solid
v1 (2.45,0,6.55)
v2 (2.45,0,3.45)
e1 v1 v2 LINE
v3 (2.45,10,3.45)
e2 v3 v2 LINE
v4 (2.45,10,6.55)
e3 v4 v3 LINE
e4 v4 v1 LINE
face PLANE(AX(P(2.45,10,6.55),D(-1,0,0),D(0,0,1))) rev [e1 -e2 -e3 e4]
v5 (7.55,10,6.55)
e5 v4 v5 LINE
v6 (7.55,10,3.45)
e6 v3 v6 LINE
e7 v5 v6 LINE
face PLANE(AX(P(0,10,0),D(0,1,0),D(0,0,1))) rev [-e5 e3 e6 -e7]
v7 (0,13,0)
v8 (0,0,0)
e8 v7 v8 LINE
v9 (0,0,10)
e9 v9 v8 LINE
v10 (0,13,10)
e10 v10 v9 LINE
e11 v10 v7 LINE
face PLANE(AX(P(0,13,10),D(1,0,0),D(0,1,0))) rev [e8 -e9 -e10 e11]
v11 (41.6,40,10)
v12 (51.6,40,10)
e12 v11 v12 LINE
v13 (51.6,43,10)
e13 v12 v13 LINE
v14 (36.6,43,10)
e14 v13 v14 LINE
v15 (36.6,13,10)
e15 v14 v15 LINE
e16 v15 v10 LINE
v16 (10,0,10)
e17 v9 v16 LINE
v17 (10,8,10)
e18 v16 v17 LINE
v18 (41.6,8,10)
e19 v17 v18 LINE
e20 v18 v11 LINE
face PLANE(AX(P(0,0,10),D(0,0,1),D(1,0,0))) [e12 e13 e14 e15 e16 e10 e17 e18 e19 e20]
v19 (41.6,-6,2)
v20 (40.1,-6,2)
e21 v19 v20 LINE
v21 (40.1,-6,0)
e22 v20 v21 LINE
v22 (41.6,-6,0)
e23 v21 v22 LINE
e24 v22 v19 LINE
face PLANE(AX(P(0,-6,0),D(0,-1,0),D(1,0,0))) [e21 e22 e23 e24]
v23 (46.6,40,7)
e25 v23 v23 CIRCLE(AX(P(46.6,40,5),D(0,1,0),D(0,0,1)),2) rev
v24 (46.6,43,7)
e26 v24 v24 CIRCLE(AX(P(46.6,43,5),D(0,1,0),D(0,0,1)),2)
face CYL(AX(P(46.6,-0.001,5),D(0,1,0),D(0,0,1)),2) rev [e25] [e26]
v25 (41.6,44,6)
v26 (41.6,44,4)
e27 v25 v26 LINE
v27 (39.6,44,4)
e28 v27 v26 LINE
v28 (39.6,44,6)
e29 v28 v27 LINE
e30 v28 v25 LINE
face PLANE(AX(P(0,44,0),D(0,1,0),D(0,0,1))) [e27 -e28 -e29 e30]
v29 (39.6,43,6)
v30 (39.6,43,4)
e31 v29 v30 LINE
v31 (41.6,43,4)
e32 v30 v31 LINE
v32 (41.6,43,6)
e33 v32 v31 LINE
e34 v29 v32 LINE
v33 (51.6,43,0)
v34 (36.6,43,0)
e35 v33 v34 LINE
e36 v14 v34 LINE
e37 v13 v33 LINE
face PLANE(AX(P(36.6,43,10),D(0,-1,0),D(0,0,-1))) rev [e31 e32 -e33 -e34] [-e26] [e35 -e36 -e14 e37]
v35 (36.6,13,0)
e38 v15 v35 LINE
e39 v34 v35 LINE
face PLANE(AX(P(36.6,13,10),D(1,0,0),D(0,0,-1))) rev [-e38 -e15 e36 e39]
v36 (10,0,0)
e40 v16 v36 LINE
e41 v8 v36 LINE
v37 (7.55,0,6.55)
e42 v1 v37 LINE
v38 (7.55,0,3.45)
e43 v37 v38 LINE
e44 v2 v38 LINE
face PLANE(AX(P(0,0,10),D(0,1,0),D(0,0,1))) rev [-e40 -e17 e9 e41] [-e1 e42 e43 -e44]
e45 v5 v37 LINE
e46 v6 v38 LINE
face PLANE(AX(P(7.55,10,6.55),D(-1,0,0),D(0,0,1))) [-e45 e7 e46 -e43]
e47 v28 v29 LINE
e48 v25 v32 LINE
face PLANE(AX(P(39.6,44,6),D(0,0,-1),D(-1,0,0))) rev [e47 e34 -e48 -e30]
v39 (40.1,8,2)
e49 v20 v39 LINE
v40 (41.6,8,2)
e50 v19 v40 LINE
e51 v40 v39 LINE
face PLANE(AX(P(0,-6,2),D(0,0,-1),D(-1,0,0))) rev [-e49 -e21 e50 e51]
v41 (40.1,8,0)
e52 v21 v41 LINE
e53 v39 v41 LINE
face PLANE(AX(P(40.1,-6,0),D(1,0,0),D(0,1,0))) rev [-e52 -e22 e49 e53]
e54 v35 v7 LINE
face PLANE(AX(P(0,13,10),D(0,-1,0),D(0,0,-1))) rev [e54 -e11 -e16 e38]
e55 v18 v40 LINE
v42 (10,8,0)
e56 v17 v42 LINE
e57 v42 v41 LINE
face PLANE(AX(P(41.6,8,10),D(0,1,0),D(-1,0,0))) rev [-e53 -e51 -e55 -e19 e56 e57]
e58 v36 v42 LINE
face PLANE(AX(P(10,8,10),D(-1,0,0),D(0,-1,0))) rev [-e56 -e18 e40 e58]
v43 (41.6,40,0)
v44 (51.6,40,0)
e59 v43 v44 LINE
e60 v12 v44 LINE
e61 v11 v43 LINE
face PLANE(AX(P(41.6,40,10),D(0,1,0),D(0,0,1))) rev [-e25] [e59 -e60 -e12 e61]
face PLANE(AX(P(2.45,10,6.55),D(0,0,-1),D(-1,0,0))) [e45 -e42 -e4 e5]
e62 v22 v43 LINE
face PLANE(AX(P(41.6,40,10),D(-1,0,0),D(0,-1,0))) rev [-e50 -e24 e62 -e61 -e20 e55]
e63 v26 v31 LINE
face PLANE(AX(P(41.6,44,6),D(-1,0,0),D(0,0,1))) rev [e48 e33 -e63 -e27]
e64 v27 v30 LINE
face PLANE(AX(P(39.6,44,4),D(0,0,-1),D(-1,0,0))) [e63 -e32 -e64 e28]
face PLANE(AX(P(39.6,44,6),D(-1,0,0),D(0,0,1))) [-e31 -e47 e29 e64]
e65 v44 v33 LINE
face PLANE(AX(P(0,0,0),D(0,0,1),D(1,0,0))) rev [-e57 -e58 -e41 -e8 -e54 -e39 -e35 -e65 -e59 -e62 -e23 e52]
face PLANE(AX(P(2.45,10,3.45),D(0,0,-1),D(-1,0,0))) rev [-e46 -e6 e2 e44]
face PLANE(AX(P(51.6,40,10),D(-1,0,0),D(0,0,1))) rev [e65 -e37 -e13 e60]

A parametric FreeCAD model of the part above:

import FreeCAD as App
import Part
import Sketcher
from FreeCAD import Vector
Q = App.Units.Quantity

doc = App.newDocument("Part")
body = doc.addObject("PartDesign::Body", "Body")

# Sketch on XY plane
sketch1 = body.newObject("Sketcher::SketchObject", "Sketch")
sketch1.AttachmentSupport = (doc.getObject("XY_Plane"), [""])
sketch1.MapMode = "FlatFace"
sketch1.addGeometry([
    Part.LineSegment(Vector(36.6, 13, 0), Vector(0, 13, 0)),  # 0
    Part.LineSegment(Vector(0, 13, 0), Vector(0, 0, 0)),  # 1
    Part.LineSegment(Vector(0, 0, 0), Vector(10, 0, 0)),  # 2
    Part.LineSegment(Vector(10, 0, 0), Vector(10, 8, 0)),  # 3
    Part.LineSegment(Vector(10, 8, 0), Vector(41.6, 8, 0)),  # 4
    Part.LineSegment(Vector(41.6, 8, 0), Vector(41.6, 40, 0)),  # 5
    Part.LineSegment(Vector(41.6, 40, 0), Vector(51.6, 40, 0)),  # 6
    Part.LineSegment(Vector(51.6, 40, 0), Vector(51.6, 43, 0)),  # 7
    Part.LineSegment(Vector(51.6, 43, 0), Vector(36.6, 43, 0)),  # 8
    Part.LineSegment(Vector(36.6, 43, 0), Vector(36.6, 13, 0)),  # 9
], False)
sketch1.addConstraint([
    Sketcher.Constraint("Coincident", 0, 2, 1, 1),
    Sketcher.Constraint("Coincident", 1, 2, 2, 1),
    Sketcher.Constraint("Coincident", 2, 2, 3, 1),
    Sketcher.Constraint("Coincident", 3, 2, 4, 1),
    Sketcher.Constraint("Coincident", 4, 2, 5, 1),
    Sketcher.Constraint("Coincident", 5, 2, 6, 1),
    Sketcher.Constraint("Coincident", 6, 2, 7, 1),
    Sketcher.Constraint("Coincident", 7, 2, 8, 1),
    Sketcher.Constraint("Coincident", 8, 2, 9, 1),
    Sketcher.Constraint("Coincident", 9, 2, 0, 1),
    Sketcher.Constraint("Horizontal", 0),
    Sketcher.Constraint("Vertical", 1),
    Sketcher.Constraint("Horizontal", 2),
    Sketcher.Constraint("Vertical", 3),
    Sketcher.Constraint("Horizontal", 4),
    Sketcher.Constraint("Vertical", 5),
    Sketcher.Constraint("Horizontal", 6),
    Sketcher.Constraint("Vertical", 7),
    Sketcher.Constraint("Horizontal", 8),
    Sketcher.Constraint("Vertical", 9),
    Sketcher.Constraint("Coincident", 1, 2, -1, 1),
    Sketcher.Constraint("Equal", 2, 6),
    Sketcher.Constraint("DistanceX", 2, 1, 2, 2, Q("10 mm")),
    Sketcher.Constraint("DistanceX", 8, 2, 8, 1, Q("15 mm")),
    Sketcher.Constraint("DistanceY", 1, 2, 1, 1, Q("13 mm")),
    Sketcher.Constraint("DistanceY", 3, 1, 3, 2, Q("8 mm")),
    Sketcher.Constraint("DistanceY", 5, 1, 5, 2, Q("32 mm")),
    Sketcher.Constraint("DistanceY", 7, 1, 7, 2, Q("3 mm")),
    Sketcher.Constraint("DistanceX", 0, 2, 0, 1, Q("36.6 mm")),
])
pad1 = body.newObject("PartDesign::Pad", "Pad")
pad1.Profile = sketch1
pad1.Length = 10

# Sketch on XZ plane
sketch2 = body.newObject("Sketcher::SketchObject", "Sketch001")
sketch2.AttachmentSupport = (doc.getObject("XZ_Plane"), [""])
sketch2.MapMode = "FlatFace"
sketch2.addGeometry([
    Part.LineSegment(Vector(2.5, 6.5, 0), Vector(2.5, 3.5, 0)),
    Part.LineSegment(Vector(2.5, 3.5, 0), Vector(7.5, 3.5, 0)),
    Part.LineSegment(Vector(7.5, 3.5, 0), Vector(7.5, 6.5, 0)),
    Part.LineSegment(Vector(7.5, 6.5, 0), Vector(2.5, 6.5, 0)),
], False)
sketch2.addConstraint([
    Sketcher.Constraint("Coincident", 0, 2, 1, 1),
    Sketcher.Constraint("Coincident", 1, 2, 2, 1),
    Sketcher.Constraint("Coincident", 2, 2, 3, 1),
    Sketcher.Constraint("Coincident", 3, 2, 0, 1),
    Sketcher.Constraint("Vertical", 0),
    Sketcher.Constraint("Horizontal", 1),
    Sketcher.Constraint("Vertical", 2),
    Sketcher.Constraint("Horizontal", 3),
    Sketcher.Constraint("DistanceX", 1, 1, 1, 2, Q("5.1 mm")),
    Sketcher.Constraint("DistanceY", 0, 2, 0, 1, Q("3.1 mm")),
    Sketcher.Constraint("DistanceX", -1, 1, 0, 2, Q("2.45 mm")),
    Sketcher.Constraint("DistanceY", -1, 1, 0, 2, Q("3.45 mm")),
])
pocket1 = body.newObject("PartDesign::Pocket", "Pocket")
pocket1.Profile = sketch2
pocket1.Length = 10

# Sketch on XZ plane
sketch3 = body.newObject("Sketcher::SketchObject", "Sketch002")
sketch3.AttachmentSupport = (doc.getObject("XZ_Plane"), [""])
sketch3.MapMode = "FlatFace"
sketch3.AttachmentOffset = App.Placement(Vector(0, 0, -43), App.Rotation())
sketch3.addGeometry([
    Part.LineSegment(Vector(39.6, 4, 0), Vector(39.6, 6, 0)),
    Part.LineSegment(Vector(39.6, 6, 0), Vector(41.6, 6, 0)),
    Part.LineSegment(Vector(41.6, 6, 0), Vector(41.6, 4, 0)),
    Part.LineSegment(Vector(41.6, 4, 0), Vector(39.6, 4, 0)),
], False)
sketch3.addConstraint([
    Sketcher.Constraint("Coincident", 0, 2, 1, 1),
    Sketcher.Constraint("Coincident", 1, 2, 2, 1),
    Sketcher.Constraint("Coincident", 2, 2, 3, 1),
    Sketcher.Constraint("Coincident", 3, 2, 0, 1),
    Sketcher.Constraint("Vertical", 0),
    Sketcher.Constraint("Horizontal", 1),
    Sketcher.Constraint("Vertical", 2),
    Sketcher.Constraint("Horizontal", 3),
    Sketcher.Constraint("Equal", 3, 0),
    Sketcher.Constraint("DistanceX", 1, 1, 1, 2, Q("2 mm")),
    Sketcher.Constraint("DistanceY", -1, 1, 0, 2, Q("6 mm")),
    Sketcher.Constraint("DistanceX", -1, 1, 0, 2, Q("39.6 mm")),
])
pad2 = body.newObject("PartDesign::Pad", "Pad001")
pad2.Profile = sketch3
pad2.Length = 1
pad2.Reversed = True

# Sketch on XZ plane
sketch4 = body.newObject("Sketcher::SketchObject", "Sketch003")
sketch4.AttachmentSupport = (doc.getObject("XZ_Plane"), [""])
sketch4.MapMode = "FlatFace"
sketch4.AttachmentOffset = App.Placement(Vector(0, 0, -43), App.Rotation())
sketch4.addGeometry(Part.Circle(Vector(46.6, 5, 0), Vector(0, 0, 1), 2), False)
sketch4.addConstraint([
    Sketcher.Constraint("Diameter", 0, Q("4 mm")),
    Sketcher.Constraint("DistanceY", -1, 1, 0, 3, Q("5 mm")),
    Sketcher.Constraint("DistanceX", -1, 1, 0, 3, Q("46.6 mm")),
])
pocket2 = body.newObject("PartDesign::Pocket", "Pocket001")
pocket2.Profile = sketch4
pocket2.Type = "UpToFirst"
pocket2.Reversed = True

# Sketch on XZ plane
sketch5 = body.newObject("Sketcher::SketchObject", "Sketch004")
sketch5.AttachmentSupport = (doc.getObject("XZ_Plane"), [""])
sketch5.MapMode = "FlatFace"
sketch5.AttachmentOffset = App.Placement(Vector(0, 0, -8), App.Rotation())
sketch5.addGeometry([
    Part.LineSegment(Vector(40.1, 2, 0), Vector(40.1, 0, 0)),
    Part.LineSegment(Vector(40.1, 0, 0), Vector(41.6, 0, 0)),
    Part.LineSegment(Vector(41.6, 0, 0), Vector(41.6, 2, 0)),
    Part.LineSegment(Vector(41.6, 2, 0), Vector(40.1, 2, 0)),
], False)
sketch5.addConstraint([
    Sketcher.Constraint("Coincident", 0, 2, 1, 1),
    Sketcher.Constraint("Coincident", 1, 2, 2, 1),
    Sketcher.Constraint("Coincident", 2, 2, 3, 1),
    Sketcher.Constraint("Coincident", 3, 2, 0, 1),
    Sketcher.Constraint("Vertical", 0),
    Sketcher.Constraint("Horizontal", 1),
    Sketcher.Constraint("Vertical", 2),
    Sketcher.Constraint("Horizontal", 3),
    Sketcher.Constraint("PointOnObject", 0, 2, -1),
    Sketcher.Constraint("DistanceY", 0, 2, 0, 1, Q("2 mm")),
    Sketcher.Constraint("DistanceX", 1, 1, 1, 2, Q("1.5 mm")),
    Sketcher.Constraint("DistanceX", -1, 1, 0, 2, Q("40.1 mm")),
])
pad3 = body.newObject("PartDesign::Pad", "Pad002")
pad3.Profile = sketch5
pad3.Length = 14

doc.recompute()
